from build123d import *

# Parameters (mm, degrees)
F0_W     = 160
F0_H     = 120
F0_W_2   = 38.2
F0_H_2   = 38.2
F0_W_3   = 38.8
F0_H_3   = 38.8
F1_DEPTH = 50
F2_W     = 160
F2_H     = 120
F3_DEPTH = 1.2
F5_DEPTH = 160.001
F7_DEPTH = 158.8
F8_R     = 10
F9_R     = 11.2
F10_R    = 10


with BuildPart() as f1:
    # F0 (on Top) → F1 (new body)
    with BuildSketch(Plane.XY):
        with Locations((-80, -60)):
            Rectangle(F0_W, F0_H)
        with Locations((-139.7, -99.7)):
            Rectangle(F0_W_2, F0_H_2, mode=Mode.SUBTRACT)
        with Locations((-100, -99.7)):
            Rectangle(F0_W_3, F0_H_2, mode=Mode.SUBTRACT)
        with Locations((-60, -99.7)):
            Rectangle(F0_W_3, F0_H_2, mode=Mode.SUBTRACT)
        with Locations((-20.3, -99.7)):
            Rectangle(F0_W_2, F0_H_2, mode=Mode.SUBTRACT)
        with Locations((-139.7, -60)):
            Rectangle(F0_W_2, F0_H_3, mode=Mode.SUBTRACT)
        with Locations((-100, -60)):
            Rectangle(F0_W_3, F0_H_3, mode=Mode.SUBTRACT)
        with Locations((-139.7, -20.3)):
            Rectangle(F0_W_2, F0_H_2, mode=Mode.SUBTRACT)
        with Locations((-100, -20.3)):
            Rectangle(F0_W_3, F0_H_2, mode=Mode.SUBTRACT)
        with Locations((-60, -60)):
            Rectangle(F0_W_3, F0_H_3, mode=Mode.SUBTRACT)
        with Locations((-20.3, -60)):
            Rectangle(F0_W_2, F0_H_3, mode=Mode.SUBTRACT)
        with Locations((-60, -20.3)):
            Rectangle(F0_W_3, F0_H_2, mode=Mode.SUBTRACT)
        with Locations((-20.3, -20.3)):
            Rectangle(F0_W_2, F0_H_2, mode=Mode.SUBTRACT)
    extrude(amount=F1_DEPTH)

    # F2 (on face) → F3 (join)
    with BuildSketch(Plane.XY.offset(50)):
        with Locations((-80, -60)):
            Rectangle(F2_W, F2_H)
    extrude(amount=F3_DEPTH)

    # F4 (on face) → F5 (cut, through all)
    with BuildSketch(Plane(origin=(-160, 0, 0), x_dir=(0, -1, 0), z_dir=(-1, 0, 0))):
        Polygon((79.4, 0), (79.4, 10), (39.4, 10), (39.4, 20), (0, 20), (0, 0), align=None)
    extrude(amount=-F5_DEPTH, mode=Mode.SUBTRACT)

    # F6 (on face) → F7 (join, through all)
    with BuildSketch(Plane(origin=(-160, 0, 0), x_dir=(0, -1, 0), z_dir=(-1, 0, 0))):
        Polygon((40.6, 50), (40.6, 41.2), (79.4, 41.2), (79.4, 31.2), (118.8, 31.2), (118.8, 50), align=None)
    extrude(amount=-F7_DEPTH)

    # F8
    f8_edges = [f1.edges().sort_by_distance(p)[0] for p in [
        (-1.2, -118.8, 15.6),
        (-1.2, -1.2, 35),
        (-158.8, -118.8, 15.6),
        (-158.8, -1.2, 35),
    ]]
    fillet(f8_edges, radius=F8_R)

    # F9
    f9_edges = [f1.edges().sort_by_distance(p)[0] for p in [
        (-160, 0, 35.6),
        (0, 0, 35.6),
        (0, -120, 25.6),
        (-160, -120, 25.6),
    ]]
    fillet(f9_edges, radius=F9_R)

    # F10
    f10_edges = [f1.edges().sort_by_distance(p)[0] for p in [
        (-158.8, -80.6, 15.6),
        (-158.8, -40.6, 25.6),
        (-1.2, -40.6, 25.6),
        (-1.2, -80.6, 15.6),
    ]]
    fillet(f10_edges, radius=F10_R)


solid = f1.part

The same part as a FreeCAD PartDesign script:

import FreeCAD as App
import Part
import Sketcher
from FreeCAD import Vector
Q = App.Units.Quantity


def edges_at(feature, points):
    """Names of the edges that pass closest to the given points."""
    edges = feature.Shape.Edges
    near = lambda p: min(range(len(edges)), key=lambda i: edges[i].distToShape(Part.Vertex(*p))[0])
    return sorted({f"Edge{near(p) + 1}" for p in points})

doc = App.newDocument("Part")
body = doc.addObject("PartDesign::Body", "Body")

# Sketch on XY plane
sketch1 = body.newObject("Sketcher::SketchObject", "Sketch")
sketch1.AttachmentSupport = (doc.getObject("XY_Plane"), [""])
sketch1.MapMode = "FlatFace"
sketch1.addGeometry(Part.LineSegment(Vector(-160, 0, 0), Vector(-160, -120, 0)), False)
sketch1.addGeometry(Part.LineSegment(Vector(-160, -120, 0), Vector(0, -120, 0)), False)
sketch1.addGeometry(Part.LineSegment(Vector(0, -120, 0), Vector(0, 0, 0)), False)
sketch1.addGeometry(Part.LineSegment(Vector(0, 0, 0), Vector(-160, 0, 0)), False)
sketch1.addGeometry(Part.LineSegment(Vector(-121, -119, 0), Vector(-159, -119, 0)), False)
sketch1.addGeometry(Part.LineSegment(Vector(-159, -119, 0), Vector(-159, -81, 0)), False)
sketch1.addGeometry(Part.LineSegment(Vector(-159, -81, 0), Vector(-121, -81, 0)), False)
sketch1.addGeometry(Part.LineSegment(Vector(-121, -81, 0), Vector(-121, -119, 0)), False)
sketch1.addGeometry(Part.LineSegment(Vector(-81, -119, 0), Vector(-119, -119, 0)), False)
sketch1.addGeometry(Part.LineSegment(Vector(-119, -119, 0), Vector(-119, -81, 0)), False)
sketch1.addGeometry(Part.LineSegment(Vector(-119, -81, 0), Vector(-81, -81, 0)), False)
sketch1.addGeometry(Part.LineSegment(Vector(-81, -81, 0), Vector(-81, -119, 0)), False)
sketch1.addGeometry(Part.LineSegment(Vector(-41, -119, 0), Vector(-79, -119, 0)), False)
sketch1.addGeometry(Part.LineSegment(Vector(-79, -119, 0), Vector(-79, -81, 0)), False)
sketch1.addGeometry(Part.LineSegment(Vector(-79, -81, 0), Vector(-41, -81, 0)), False)
sketch1.addGeometry(Part.LineSegment(Vector(-41, -81, 0), Vector(-41, -119, 0)), False)
sketch1.addGeometry(Part.LineSegment(Vector(-1, -119, 0), Vector(-39, -119, 0)), False)
sketch1.addGeometry(Part.LineSegment(Vector(-39, -119, 0), Vector(-39, -81, 0)), False)
sketch1.addGeometry(Part.LineSegment(Vector(-39, -81, 0), Vector(-1, -81, 0)), False)
sketch1.addGeometry(Part.LineSegment(Vector(-1, -81, 0), Vector(-1, -119, 0)), False)
sketch1.addGeometry(Part.LineSegment(Vector(-121, -79, 0), Vector(-159, -79, 0)), False)
sketch1.addGeometry(Part.LineSegment(Vector(-159, -79, 0), Vector(-159, -41, 0)), False)
sketch1.addGeometry(Part.LineSegment(Vector(-159, -41, 0), Vector(-121, -41, 0)), False)
sketch1.addGeometry(Part.LineSegment(Vector(-121, -41, 0), Vector(-121, -79, 0)), False)
sketch1.addGeometry(Part.LineSegment(Vector(-81, -79, 0), Vector(-119, -79, 0)), False)
sketch1.addGeometry(Part.LineSegment(Vector(-119, -79, 0), Vector(-119, -41, 0)), False)
sketch1.addGeometry(Part.LineSegment(Vector(-119, -41, 0), Vector(-81, -41, 0)), False)
sketch1.addGeometry(Part.LineSegment(Vector(-81, -41, 0), Vector(-81, -79, 0)), False)
sketch1.addGeometry(Part.LineSegment(Vector(-121, -39, 0), Vector(-159, -39, 0)), False)
sketch1.addGeometry(Part.LineSegment(Vector(-159, -39, 0), Vector(-159, -1, 0)), False)
sketch1.addGeometry(Part.LineSegment(Vector(-159, -1, 0), Vector(-121, -1, 0)), False)
sketch1.addGeometry(Part.LineSegment(Vector(-121, -1, 0), Vector(-121, -39, 0)), False)
sketch1.addGeometry(Part.LineSegment(Vector(-81, -39, 0), Vector(-119, -39, 0)), False)
sketch1.addGeometry(Part.LineSegment(Vector(-119, -39, 0), Vector(-119, -1, 0)), False)
sketch1.addGeometry(Part.LineSegment(Vector(-119, -1, 0), Vector(-81, -1, 0)), False)
sketch1.addGeometry(Part.LineSegment(Vector(-81, -1, 0), Vector(-81, -39, 0)), False)
sketch1.addGeometry(Part.LineSegment(Vector(-41, -79, 0), Vector(-79, -79, 0)), False)
sketch1.addGeometry(Part.LineSegment(Vector(-79, -79, 0), Vector(-79, -41, 0)), False)
sketch1.addGeometry(Part.LineSegment(Vector(-79, -41, 0), Vector(-41, -41, 0)), False)
sketch1.addGeometry(Part.LineSegment(Vector(-41, -41, 0), Vector(-41, -79, 0)), False)
sketch1.addGeometry(Part.LineSegment(Vector(-1, -79, 0), Vector(-39, -79, 0)), False)
sketch1.addGeometry(Part.LineSegment(Vector(-39, -79, 0), Vector(-39, -41, 0)), False)
sketch1.addGeometry(Part.LineSegment(Vector(-39, -41, 0), Vector(-1, -41, 0)), False)
sketch1.addGeometry(Part.LineSegment(Vector(-1, -41, 0), Vector(-1, -79, 0)), False)
sketch1.addGeometry(Part.LineSegment(Vector(-41, -39, 0), Vector(-79, -39, 0)), False)
sketch1.addGeometry(Part.LineSegment(Vector(-79, -39, 0), Vector(-79, -1, 0)), False)
sketch1.addGeometry(Part.LineSegment(Vector(-79, -1, 0), Vector(-41, -1, 0)), False)
sketch1.addGeometry(Part.LineSegment(Vector(-41, -1, 0), Vector(-41, -39, 0)), False)
sketch1.addGeometry(Part.LineSegment(Vector(-1, -39, 0), Vector(-39, -39, 0)), False)
sketch1.addGeometry(Part.LineSegment(Vector(-39, -39, 0), Vector(-39, -1, 0)), False)
sketch1.addGeometry(Part.LineSegment(Vector(-39, -1, 0), Vector(-1, -1, 0)), False)
sketch1.addGeometry(Part.LineSegment(Vector(-1, -1, 0), Vector(-1, -39, 0)), False)
sketch1.addConstraint(Sketcher.Constraint("Coincident", 0, 2, 1, 1))
sketch1.addConstraint(Sketcher.Constraint("Coincident", 1, 2, 2, 1))
sketch1.addConstraint(Sketcher.Constraint("Coincident", 2, 2, 3, 1))
sketch1.addConstraint(Sketcher.Constraint("Coincident", 3, 2, 0, 1))
sketch1.addConstraint(Sketcher.Constraint("Coincident", 4, 2, 5, 1))
sketch1.addConstraint(Sketcher.Constraint("Coincident", 5, 2, 6, 1))
sketch1.addConstraint(Sketcher.Constraint("Coincident", 6, 2, 7, 1))
sketch1.addConstraint(Sketcher.Constraint("Coincident", 7, 2, 4, 1))
sketch1.addConstraint(Sketcher.Constraint("Coincident", 8, 2, 9, 1))
sketch1.addConstraint(Sketcher.Constraint("Coincident", 9, 2, 10, 1))
sketch1.addConstraint(Sketcher.Constraint("Coincident", 10, 2, 11, 1))
sketch1.addConstraint(Sketcher.Constraint("Coincident", 11, 2, 8, 1))
sketch1.addConstraint(Sketcher.Constraint("Coincident", 12, 2, 13, 1))
sketch1.addConstraint(Sketcher.Constraint("Coincident", 13, 2, 14, 1))
sketch1.addConstraint(Sketcher.Constraint("Coincident", 14, 2, 15, 1))
sketch1.addConstraint(Sketcher.Constraint("Coincident", 15, 2, 12, 1))
sketch1.addConstraint(Sketcher.Constraint("Coincident", 16, 2, 17, 1))
sketch1.addConstraint(Sketcher.Constraint("Coincident", 17, 2, 18, 1))
sketch1.addConstraint(Sketcher.Constraint("Coincident", 18, 2, 19, 1))
sketch1.addConstraint(Sketcher.Constraint("Coincident", 19, 2, 16, 1))
sketch1.addConstraint(Sketcher.Constraint("Coincident", 20, 2, 21, 1))
sketch1.addConstraint(Sketcher.Constraint("Coincident", 21, 2, 22, 1))
sketch1.addConstraint(Sketcher.Constraint("Coincident", 22, 2, 23, 1))
sketch1.addConstraint(Sketcher.Constraint("Coincident", 23, 2, 20, 1))
sketch1.addConstraint(Sketcher.Constraint("Coincident", 24, 2, 25, 1))
sketch1.addConstraint(Sketcher.Constraint("Coincident", 25, 2, 26, 1))
sketch1.addConstraint(Sketcher.Constraint("Coincident", 26, 2, 27, 1))
sketch1.addConstraint(Sketcher.Constraint("Coincident", 27, 2, 24, 1))
sketch1.addConstraint(Sketcher.Constraint("Coincident", 28, 2, 29, 1))
sketch1.addConstraint(Sketcher.Constraint("Coincident", 29, 2, 30, 1))
sketch1.addConstraint(Sketcher.Constraint("Coincident", 30, 2, 31, 1))
sketch1.addConstraint(Sketcher.Constraint("Coincident", 31, 2, 28, 1))
sketch1.addConstraint(Sketcher.Constraint("Coincident", 32, 2, 33, 1))
sketch1.addConstraint(Sketcher.Constraint("Coincident", 33, 2, 34, 1))
sketch1.addConstraint(Sketcher.Constraint("Coincident", 34, 2, 35, 1))
sketch1.addConstraint(Sketcher.Constraint("Coincident", 35, 2, 32, 1))
sketch1.addConstraint(Sketcher.Constraint("Coincident", 36, 2, 37, 1))
sketch1.addConstraint(Sketcher.Constraint("Coincident", 37, 2, 38, 1))
sketch1.addConstraint(Sketcher.Constraint("Coincident", 38, 2, 39, 1))
sketch1.addConstraint(Sketcher.Constraint("Coincident", 39, 2, 36, 1))
sketch1.addConstraint(Sketcher.Constraint("Coincident", 40, 2, 41, 1))
sketch1.addConstraint(Sketcher.Constraint("Coincident", 41, 2, 42, 1))
sketch1.addConstraint(Sketcher.Constraint("Coincident", 42, 2, 43, 1))
sketch1.addConstraint(Sketcher.Constraint("Coincident", 43, 2, 40, 1))
sketch1.addConstraint(Sketcher.Constraint("Coincident", 44, 2, 45, 1))
sketch1.addConstraint(Sketcher.Constraint("Coincident", 45, 2, 46, 1))
sketch1.addConstraint(Sketcher.Constraint("Coincident", 46, 2, 47, 1))
sketch1.addConstraint(Sketcher.Constraint("Coincident", 47, 2, 44, 1))
sketch1.addConstraint(Sketcher.Constraint("Coincident", 48, 2, 49, 1))
sketch1.addConstraint(Sketcher.Constraint("Coincident", 49, 2, 50, 1))
sketch1.addConstraint(Sketcher.Constraint("Coincident", 50, 2, 51, 1))
sketch1.addConstraint(Sketcher.Constraint("Coincident", 51, 2, 48, 1))
sketch1.addConstraint(Sketcher.Constraint("Vertical", 0))
sketch1.addConstraint(Sketcher.Constraint("Horizontal", 1))
sketch1.addConstraint(Sketcher.Constraint("Vertical", 2))
sketch1.addConstraint(Sketcher.Constraint("Horizontal", 3))
sketch1.addConstraint(Sketcher.Constraint("Horizontal", 4))
sketch1.addConstraint(Sketcher.Constraint("Vertical", 5))
sketch1.addConstraint(Sketcher.Constraint("Horizontal", 6))
sketch1.addConstraint(Sketcher.Constraint("Vertical", 7))
sketch1.addConstraint(Sketcher.Constraint("Horizontal", 8))
sketch1.addConstraint(Sketcher.Constraint("Vertical", 9))
sketch1.addConstraint(Sketcher.Constraint("Horizontal", 10))
sketch1.addConstraint(Sketcher.Constraint("Vertical", 11))
sketch1.addConstraint(Sketcher.Constraint("Horizontal", 12))
sketch1.addConstraint(Sketcher.Constraint("Vertical", 13))
sketch1.addConstraint(Sketcher.Constraint("Horizontal", 14))
sketch1.addConstraint(Sketcher.Constraint("Vertical", 15))
sketch1.addConstraint(Sketcher.Constraint("Horizontal", 16))
sketch1.addConstraint(Sketcher.Constraint("Vertical", 17))
sketch1.addConstraint(Sketcher.Constraint("Horizontal", 18))
sketch1.addConstraint(Sketcher.Constraint("Vertical", 19))
sketch1.addConstraint(Sketcher.Constraint("Horizontal", 20))
sketch1.addConstraint(Sketcher.Constraint("Vertical", 21))
sketch1.addConstraint(Sketcher.Constraint("Horizontal", 22))
sketch1.addConstraint(Sketcher.Constraint("Vertical", 23))
sketch1.addConstraint(Sketcher.Constraint("Horizontal", 24))
sketch1.addConstraint(Sketcher.Constraint("Vertical", 25))
sketch1.addConstraint(Sketcher.Constraint("Horizontal", 26))
sketch1.addConstraint(Sketcher.Constraint("Vertical", 27))
sketch1.addConstraint(Sketcher.Constraint("Horizontal", 28))
sketch1.addConstraint(Sketcher.Constraint("Vertical", 29))
sketch1.addConstraint(Sketcher.Constraint("Horizontal", 30))
sketch1.addConstraint(Sketcher.Constraint("Vertical", 31))
sketch1.addConstraint(Sketcher.Constraint("Horizontal", 32))
sketch1.addConstraint(Sketcher.Constraint("Vertical", 33))
sketch1.addConstraint(Sketcher.Constraint("Horizontal", 34))
sketch1.addConstraint(Sketcher.Constraint("Vertical", 35))
sketch1.addConstraint(Sketcher.Constraint("Horizontal", 36))
sketch1.addConstraint(Sketcher.Constraint("Vertical", 37))
sketch1.addConstraint(Sketcher.Constraint("Horizontal", 38))
sketch1.addConstraint(Sketcher.Constraint("Vertical", 39))
sketch1.addConstraint(Sketcher.Constraint("Horizontal", 40))
sketch1.addConstraint(Sketcher.Constraint("Vertical", 41))
sketch1.addConstraint(Sketcher.Constraint("Horizontal", 42))
sketch1.addConstraint(Sketcher.Constraint("Vertical", 43))
sketch1.addConstraint(Sketcher.Constraint("Horizontal", 44))
sketch1.addConstraint(Sketcher.Constraint("Vertical", 45))
sketch1.addConstraint(Sketcher.Constraint("Horizontal", 46))
sketch1.addConstraint(Sketcher.Constraint("Vertical", 47))
sketch1.addConstraint(Sketcher.Constraint("Horizontal", 48))
sketch1.addConstraint(Sketcher.Constraint("Vertical", 49))
sketch1.addConstraint(Sketcher.Constraint("Horizontal", 50))
sketch1.addConstraint(Sketcher.Constraint("Vertical", 51))
sketch1.addConstraint(Sketcher.Constraint("Coincident", 2, 2, -1, 1))
sketch1.addConstraint(Sketcher.Constraint("Horizontal", 7, 2, 8, 2))
sketch1.addConstraint(Sketcher.Constraint("Horizontal", 6, 2, 9, 2))
sketch1.addConstraint(Sketcher.Constraint("Horizontal", 11, 2, 12, 2))
sketch1.addConstraint(Sketcher.Constraint("Horizontal", 10, 2, 13, 2))
sketch1.addConstraint(Sketcher.Constraint("Horizontal", 15, 2, 16, 2))
sketch1.addConstraint(Sketcher.Constraint("Horizontal", 14, 2, 17, 2))
sketch1.addConstraint(Sketcher.Constraint("Horizontal", 23, 2, 24, 2))
sketch1.addConstraint(Sketcher.Constraint("Horizontal", 22, 2, 25, 2))
sketch1.addConstraint(Sketcher.Constraint("Horizontal", 31, 2, 32, 2))
sketch1.addConstraint(Sketcher.Constraint("Horizontal", 30, 2, 33, 2))
sketch1.addConstraint(Sketcher.Constraint("Horizontal", 27, 2, 36, 2))
sketch1.addConstraint(Sketcher.Constraint("Horizontal", 26, 2, 37, 2))
sketch1.addConstraint(Sketcher.Constraint("Horizontal", 39, 2, 40, 2))
sketch1.addConstraint(Sketcher.Constraint("Horizontal", 38, 2, 41, 2))
sketch1.addConstraint(Sketcher.Constraint("Horizontal", 35, 2, 44, 2))
sketch1.addConstraint(Sketcher.Constraint("Horizontal", 34, 2, 45, 2))
sketch1.addConstraint(Sketcher.Constraint("Horizontal", 47, 2, 48, 2))
sketch1.addConstraint(Sketcher.Constraint("Horizontal", 46, 2, 49, 2))
sketch1.addConstraint(Sketcher.Constraint("Vertical", 5, 2, 20, 2))
sketch1.addConstraint(Sketcher.Constraint("Vertical", 7, 2, 22, 2))
sketch1.addConstraint(Sketcher.Constraint("Vertical", 9, 2, 24, 2))
sketch1.addConstraint(Sketcher.Constraint("Vertical", 11, 2, 26, 2))
sketch1.addConstraint(Sketcher.Constraint("Vertical", 21, 2, 28, 2))
sketch1.addConstraint(Sketcher.Constraint("Vertical", 23, 2, 30, 2))
sketch1.addConstraint(Sketcher.Constraint("Vertical", 25, 2, 32, 2))
sketch1.addConstraint(Sketcher.Constraint("Vertical", 27, 2, 34, 2))
sketch1.addConstraint(Sketcher.Constraint("Vertical", 13, 2, 36, 2))
sketch1.addConstraint(Sketcher.Constraint("Vertical", 15, 2, 38, 2))
sketch1.addConstraint(Sketcher.Constraint("Vertical", 17, 2, 40, 2))
sketch1.addConstraint(Sketcher.Constraint("Vertical", 19, 2, 42, 2))
sketch1.addConstraint(Sketcher.Constraint("Vertical", 37, 2, 44, 2))
sketch1.addConstraint(Sketcher.Constraint("Vertical", 39, 2, 46, 2))
sketch1.addConstraint(Sketcher.Constraint("Vertical", 41, 2, 48, 2))
sketch1.addConstraint(Sketcher.Constraint("Vertical", 43, 2, 50, 2))
sketch1.addConstraint(Sketcher.Constraint("Equal", 10, 12))
sketch1.addConstraint(Sketcher.Constraint("Equal", 6, 16))
sketch1.addConstraint(Sketcher.Constraint("Equal", 50, 5))
sketch1.addConstraint(Sketcher.Constraint("Equal", 46, 21))
sketch1.addConstraint(Sketcher.Constraint("Equal", 19, 29))
sketch1.addConstraint(Sketcher.Constraint("DistanceX", 1, 1, 1, 2, Q("160 mm")))
sketch1.addConstraint(Sketcher.Constraint("DistanceY", 0, 2, 0, 1, Q("120 mm")))
sketch1.addConstraint(Sketcher.Constraint("DistanceX", 4, 2, 4, 1, Q("38.2 mm")))
sketch1.addConstraint(Sketcher.Constraint("DistanceX", 8, 2, 8, 1, Q("38.8 mm")))
sketch1.addConstraint(Sketcher.Constraint("DistanceX", 6, 2, 10, 2, Q("40 mm")))
sketch1.addConstraint(Sketcher.Constraint("DistanceX", 8, 2, 12, 2, Q("40 mm")))
sketch1.addConstraint(Sketcher.Constraint("DistanceX", 12, 2, 16, 2, Q("40 mm")))
sketch1.addConstraint(Sketcher.Constraint("DistanceY", 5, 2, 21, 2, Q("40 mm")))
sketch1.addConstraint(Sketcher.Constraint("DistanceY", 20, 2, 28, 2, Q("40 mm")))
sketch1.addConstraint(Sketcher.Constraint("DistanceX", 4, 2, -1, 1, Q("158.8 mm")))
sketch1.addConstraint(Sketcher.Constraint("DistanceY", 4, 2, -1, 1, Q("118.8 mm")))
pad1 = body.newObject("PartDesign::Pad", "Pad")
pad1.Profile = sketch1
pad1.Length = 50

# Sketch on XY plane
sketch2 = body.newObject("Sketcher::SketchObject", "Sketch001")
sketch2.AttachmentSupport = (doc.getObject("XY_Plane"), [""])
sketch2.MapMode = "FlatFace"
sketch2.AttachmentOffset = App.Placement(Vector(0, 0, 50), App.Rotation())
sketch2.addGeometry(Part.LineSegment(Vector(-160, 0, 0), Vector(-160, -120, 0)), False)
sketch2.addGeometry(Part.LineSegment(Vector(-160, -120, 0), Vector(0, -120, 0)), False)
sketch2.addGeometry(Part.LineSegment(Vector(0, -120, 0), Vector(0, 0, 0)), False)
sketch2.addGeometry(Part.LineSegment(Vector(0, 0, 0), Vector(-160, 0, 0)), False)
sketch2.addConstraint(Sketcher.Constraint("Coincident", 0, 2, 1, 1))
sketch2.addConstraint(Sketcher.Constraint("Coincident", 1, 2, 2, 1))
sketch2.addConstraint(Sketcher.Constraint("Coincident", 2, 2, 3, 1))
sketch2.addConstraint(Sketcher.Constraint("Coincident", 3, 2, 0, 1))
sketch2.addConstraint(Sketcher.Constraint("Vertical", 0))
sketch2.addConstraint(Sketcher.Constraint("Horizontal", 1))
sketch2.addConstraint(Sketcher.Constraint("Vertical", 2))
sketch2.addConstraint(Sketcher.Constraint("Horizontal", 3))
sketch2.addConstraint(Sketcher.Constraint("Coincident", 2, 2, -1, 1))
sketch2.addConstraint(Sketcher.Constraint("DistanceX", 1, 1, 1, 2, Q("160 mm")))
sketch2.addConstraint(Sketcher.Constraint("DistanceY", 0, 2, 0, 1, Q("120 mm")))
pad2 = body.newObject("PartDesign::Pad", "Pad001")
pad2.Profile = sketch2
pad2.Length = 1.2

# Sketch on YZ plane
sketch3 = body.newObject("Sketcher::SketchObject", "Sketch002")
sketch3.AttachmentSupport = (doc.getObject("YZ_Plane"), [""])
sketch3.MapMode = "FlatFace"
sketch3.AttachmentOffset = App.Placement(Vector(0, 0, -160), App.Rotation())
sketch3.addGeometry(Part.LineSegment(Vector(-79, 0, 0), Vector(-79, 10, 0)), False)
sketch3.addGeometry(Part.LineSegment(Vector(-79, 10, 0), Vector(-39, 10, 0)), False)
sketch3.addGeometry(Part.LineSegment(Vector(-39, 10, 0), Vector(-39, 20, 0)), False)
sketch3.addGeometry(Part.LineSegment(Vector(-39, 20, 0), Vector(0, 20, 0)), False)
sketch3.addGeometry(Part.LineSegment(Vector(0, 20, 0), Vector(0, 0, 0)), False)
sketch3.addGeometry(Part.LineSegment(Vector(0, 0, 0), Vector(-79, 0, 0)), False)
sketch3.addConstraint(Sketcher.Constraint("Coincident", 0, 2, 1, 1))
sketch3.addConstraint(Sketcher.Constraint("Coincident", 1, 2, 2, 1))
sketch3.addConstraint(Sketcher.Constraint("Coincident", 2, 2, 3, 1))
sketch3.addConstraint(Sketcher.Constraint("Coincident", 3, 2, 4, 1))
sketch3.addConstraint(Sketcher.Constraint("Coincident", 4, 2, 5, 1))
sketch3.addConstraint(Sketcher.Constraint("Coincident", 5, 2, 0, 1))
sketch3.addConstraint(Sketcher.Constraint("Vertical", 0))
sketch3.addConstraint(Sketcher.Constraint("Horizontal", 1))
sketch3.addConstraint(Sketcher.Constraint("Vertical", 2))
sketch3.addConstraint(Sketcher.Constraint("Horizontal", 3))
sketch3.addConstraint(Sketcher.Constraint("Vertical", 4))
sketch3.addConstraint(Sketcher.Constraint("Horizontal", 5))
sketch3.addConstraint(Sketcher.Constraint("Coincident", 4, 2, -1, 1))
sketch3.addConstraint(Sketcher.Constraint("Equal", 0, 2))
sketch3.addConstraint(Sketcher.Constraint("DistanceX", 1, 1, 1, 2, Q("40 mm")))
sketch3.addConstraint(Sketcher.Constraint("DistanceY", 0, 1, 0, 2, Q("10 mm")))
sketch3.addConstraint(Sketcher.Constraint("DistanceX", 3, 1, 3, 2, Q("39.4 mm")))
pocket1 = body.newObject("PartDesign::Pocket", "Pocket")
pocket1.Profile = sketch3
pocket1.Type = "ThroughAll"
pocket1.Reversed = True

# Sketch on YZ plane
sketch4 = body.newObject("Sketcher::SketchObject", "Sketch003")
sketch4.AttachmentSupport = (doc.getObject("YZ_Plane"), [""])
sketch4.MapMode = "FlatFace"
sketch4.AttachmentOffset = App.Placement(Vector(0, 0, -160), App.Rotation())
sketch4.addGeometry(Part.LineSegment(Vector(-41, 50, 0), Vector(-41, 41, 0)), False)
sketch4.addGeometry(Part.LineSegment(Vector(-41, 41, 0), Vector(-79, 41, 0)), False)
sketch4.addGeometry(Part.LineSegment(Vector(-79, 41, 0), Vector(-79, 31, 0)), False)
sketch4.addGeometry(Part.LineSegment(Vector(-79, 31, 0), Vector(-119, 31, 0)), False)
sketch4.addGeometry(Part.LineSegment(Vector(-119, 31, 0), Vector(-119, 50, 0)), False)
sketch4.addGeometry(Part.LineSegment(Vector(-119, 50, 0), Vector(-41, 50, 0)), False)
sketch4.addConstraint(Sketcher.Constraint("Coincident", 0, 2, 1, 1))
sketch4.addConstraint(Sketcher.Constraint("Coincident", 1, 2, 2, 1))
sketch4.addConstraint(Sketcher.Constraint("Coincident", 2, 2, 3, 1))
sketch4.addConstraint(Sketcher.Constraint("Coincident", 3, 2, 4, 1))
sketch4.addConstraint(Sketcher.Constraint("Coincident", 4, 2, 5, 1))
sketch4.addConstraint(Sketcher.Constraint("Coincident", 5, 2, 0, 1))
sketch4.addConstraint(Sketcher.Constraint("Vertical", 0))
sketch4.addConstraint(Sketcher.Constraint("Horizontal", 1))
sketch4.addConstraint(Sketcher.Constraint("Vertical", 2))
sketch4.addConstraint(Sketcher.Constraint("Horizontal", 3))
sketch4.addConstraint(Sketcher.Constraint("Vertical", 4))
sketch4.addConstraint(Sketcher.Constraint("Horizontal", 5))
sketch4.addConstraint(Sketcher.Constraint("DistanceY", 2, 2, 2, 1, Q("10 mm")))
sketch4.addConstraint(Sketcher.Constraint("DistanceX", 1, 2, 1, 1, Q("38.8 mm")))
sketch4.addConstraint(Sketcher.Constraint("DistanceX", 3, 2, 3, 1, Q("39.4 mm")))
sketch4.addConstraint(Sketcher.Constraint("DistanceY", 0, 2, 0, 1, Q("8.8 mm")))
sketch4.addConstraint(Sketcher.Constraint("DistanceY", -1, 1, 4, 2, Q("50 mm")))
sketch4.addConstraint(Sketcher.Constraint("DistanceX", 0, 2, -1, 1, Q("40.6 mm")))
pad3 = body.newObject("PartDesign::Pad", "Pad002")
pad3.Profile = sketch4
pad3.Type = "UpToLast"
doc.recompute()

fillet = body.newObject("PartDesign::Fillet", "Fillet")
fillet.Base = (pad3, edges_at(pad3, [
    (-1.2, -118.8, 15.6),
    (-1.2, -1.2, 35),
    (-158.8, -118.8, 15.6),
    (-158.8, -1.2, 35),
]))
fillet.Radius = 10
doc.recompute()

fillet2 = body.newObject("PartDesign::Fillet", "Fillet001")
fillet2.Base = (fillet, edges_at(fillet, [
    (-160, 0, 35.6),
    (0, 0, 35.6),
    (0, -120, 25.6),
    (-160, -120, 25.6),
]))
fillet2.Radius = 11.2
doc.recompute()

fillet3 = body.newObject("PartDesign::Fillet", "Fillet002")
fillet3.Base = (fillet2, edges_at(fillet2, [
    (-158.8, -80.6, 15.6),
    (-158.8, -40.6, 25.6),
    (-1.2, -40.6, 25.6),
    (-1.2, -80.6, 15.6),
]))
fillet3.Radius = 10

doc.recompute()
